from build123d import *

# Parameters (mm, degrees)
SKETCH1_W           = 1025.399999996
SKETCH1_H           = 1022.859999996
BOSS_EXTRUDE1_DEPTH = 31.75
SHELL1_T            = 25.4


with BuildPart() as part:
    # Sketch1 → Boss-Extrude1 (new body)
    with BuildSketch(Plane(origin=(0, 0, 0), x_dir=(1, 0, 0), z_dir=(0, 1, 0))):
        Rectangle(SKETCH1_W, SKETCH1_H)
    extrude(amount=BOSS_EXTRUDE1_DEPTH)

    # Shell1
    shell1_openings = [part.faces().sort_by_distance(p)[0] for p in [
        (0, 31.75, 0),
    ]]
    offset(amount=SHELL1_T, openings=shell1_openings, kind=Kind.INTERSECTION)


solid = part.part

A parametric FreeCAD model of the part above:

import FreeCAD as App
import Part
import Sketcher
from FreeCAD import Vector
Q = App.Units.Quantity


def faces_at(feature, points):
    """Names of the faces that lie closest to the given points."""
    faces = feature.Shape.Faces
    near = lambda p: min(range(len(faces)), key=lambda i: faces[i].distToShape(Part.Vertex(*p))[0])
    return sorted({f"Face{near(p) + 1}" for p in points})

doc = App.newDocument("Part")
body = doc.addObject("PartDesign::Body", "Body")

# Sketch on XZ plane
sketch1 = body.newObject("Sketcher::SketchObject", "Sketch")
sketch1.AttachmentSupport = (doc.getObject("XZ_Plane"), [""])
sketch1.MapMode = "FlatFace"
sketch1.addGeometry([
    Part.LineSegment(Vector(-513, -511, 0), Vector(-513, 511, 0)),
    Part.LineSegment(Vector(-513, 511, 0), Vector(513, 511, 0)),
    Part.LineSegment(Vector(513, 511, 0), Vector(513, -511, 0)),
    Part.LineSegment(Vector(513, -511, 0), Vector(-513, -511, 0)),
], False)
sketch1.addConstraint([
    Sketcher.Constraint("Coincident", 0, 2, 1, 1),
    Sketcher.Constraint("Coincident", 1, 2, 2, 1),
    Sketcher.Constraint("Coincident", 2, 2, 3, 1),
    Sketcher.Constraint("Coincident", 3, 2, 0, 1),
    Sketcher.Constraint("Vertical", 0),
    Sketcher.Constraint("Horizontal", 1),
    Sketcher.Constraint("Vertical", 2),
    Sketcher.Constraint("Horizontal", 3),
    Sketcher.Constraint("Symmetric", 0, 2, 2, 2, -1, 1),
    Sketcher.Constraint("DistanceX", 1, 1, 1, 2, 1025.4),
    Sketcher.Constraint("DistanceY", 0, 1, 0, 2, 1022.86),
])
pad1 = body.newObject("PartDesign::Pad", "Pad")
pad1.Profile = sketch1
pad1.Length = Q("1.25 in")
pad1.Reversed = True
doc.recompute()

thickness = body.newObject("PartDesign::Thickness", "Thickness")
thickness.Base = (pad1, faces_at(pad1, [(0, 31.75, 0)]))
thickness.Value = Q("1 in")
thickness.Reversed = False
thickness.Join = "Intersection"

doc.recompute()
